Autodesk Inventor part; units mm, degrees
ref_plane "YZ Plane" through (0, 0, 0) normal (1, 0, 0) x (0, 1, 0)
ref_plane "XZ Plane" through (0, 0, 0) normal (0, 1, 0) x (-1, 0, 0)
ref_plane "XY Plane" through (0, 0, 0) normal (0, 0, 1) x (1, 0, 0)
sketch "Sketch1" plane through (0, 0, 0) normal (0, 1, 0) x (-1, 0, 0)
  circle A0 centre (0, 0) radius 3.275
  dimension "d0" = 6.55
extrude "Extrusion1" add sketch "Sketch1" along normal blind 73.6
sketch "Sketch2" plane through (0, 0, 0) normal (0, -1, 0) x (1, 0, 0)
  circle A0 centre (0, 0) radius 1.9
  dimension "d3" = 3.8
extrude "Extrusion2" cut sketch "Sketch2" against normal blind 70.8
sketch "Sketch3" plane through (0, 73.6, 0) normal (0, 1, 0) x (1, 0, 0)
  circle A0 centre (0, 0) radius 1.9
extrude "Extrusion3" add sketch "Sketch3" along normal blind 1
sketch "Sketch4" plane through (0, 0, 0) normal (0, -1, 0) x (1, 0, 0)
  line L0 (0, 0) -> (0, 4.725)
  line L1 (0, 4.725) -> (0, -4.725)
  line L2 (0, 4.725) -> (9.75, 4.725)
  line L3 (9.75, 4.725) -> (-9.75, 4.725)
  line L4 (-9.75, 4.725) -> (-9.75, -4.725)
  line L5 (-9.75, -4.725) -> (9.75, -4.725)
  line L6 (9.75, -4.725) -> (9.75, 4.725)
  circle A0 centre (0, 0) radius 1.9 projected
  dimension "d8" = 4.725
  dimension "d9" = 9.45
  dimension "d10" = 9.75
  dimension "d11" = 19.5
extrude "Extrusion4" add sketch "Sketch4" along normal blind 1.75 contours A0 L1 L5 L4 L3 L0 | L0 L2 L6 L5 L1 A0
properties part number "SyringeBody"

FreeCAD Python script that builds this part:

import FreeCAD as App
import Part
import Sketcher

doc = App.newDocument("Part")
body = doc.addObject("PartDesign::Body", "Body")

# Sketch on XZ plane
sketch1 = body.newObject("Sketcher::SketchObject", "Sketch")
sketch1.AttachmentSupport = (doc.getObject("XZ_Plane"), [""])
sketch1.MapMode = "FlatFace"
sketch1.addGeometry(Part.Circle(App.Vector(0, 0, 0), App.Vector(0, 0, 1), 3.3), False)
sketch1.addConstraint([
    Sketcher.Constraint("Coincident", 0, 3, -1, 1),
    Sketcher.Constraint("Diameter", 0, 6.55),
])
pad1 = body.newObject("PartDesign::Pad", "Pad")
pad1.Profile = sketch1
pad1.Length = 73.6
pad1.Reversed = True

# Sketch on XZ plane
sketch2 = body.newObject("Sketcher::SketchObject", "Sketch001")
sketch2.AttachmentSupport = (doc.getObject("XZ_Plane"), [""])
sketch2.MapMode = "FlatFace"
sketch2.addGeometry(Part.Circle(App.Vector(0, 0, 0), App.Vector(0, 0, 1), 1.9), False)
sketch2.addConstraint([
    Sketcher.Constraint("Coincident", 0, 3, -1, 1),
    Sketcher.Constraint("Diameter", 0, 3.8),
])
pocket1 = body.newObject("PartDesign::Pocket", "Pocket")
pocket1.Profile = sketch2
pocket1.Length = 70.8

# Sketch on XZ plane
sketch3 = body.newObject("Sketcher::SketchObject", "Sketch002")
sketch3.AttachmentSupport = (doc.getObject("XZ_Plane"), [""])
sketch3.MapMode = "FlatFace"
sketch3.AttachmentOffset = App.Placement(App.Vector(0, 0, -73.6), App.Rotation())
sketch3.addGeometry(Part.Circle(App.Vector(0, 0, 0), App.Vector(0, 0, 1), 1.9), False)
sketch3.addConstraint([
    Sketcher.Constraint("Coincident", 0, 3, -1, 1),
    Sketcher.Constraint("Diameter", 0, 3.8),
])
pad2 = body.newObject("PartDesign::Pad", "Pad001")
pad2.Profile = sketch3
pad2.Length = 1
pad2.Reversed = True

# Sketch on XZ plane
sketch4 = body.newObject("Sketcher::SketchObject", "Sketch003")
sketch4.AttachmentSupport = (doc.getObject("XZ_Plane"), [""])
sketch4.MapMode = "FlatFace"
sketch4.addGeometry([
    Part.LineSegment(App.Vector(-9.8, -4.7, 0), App.Vector(9.8, -4.7, 0)),  # 0
    Part.LineSegment(App.Vector(9.8, -4.7, 0), App.Vector(9.8, 4.7, 0)),  # 1
    Part.LineSegment(App.Vector(9.8, 4.7, 0), App.Vector(-9.8, 4.7, 0)),  # 2
    Part.LineSegment(App.Vector(-9.8, 4.7, 0), App.Vector(-9.8, -4.7, 0)),  # 3
    Part.Circle(App.Vector(0, 0, 0), App.Vector(0, 0, 1), 1.9),  # 4
], False)
sketch4.addConstraint([
    Sketcher.Constraint("Coincident", 0, 2, 1, 1),
    Sketcher.Constraint("Coincident", 1, 2, 2, 1),
    Sketcher.Constraint("Coincident", 2, 2, 3, 1),
    Sketcher.Constraint("Coincident", 3, 2, 0, 1),
    Sketcher.Constraint("Horizontal", 0),
    Sketcher.Constraint("Vertical", 1),
    Sketcher.Constraint("Horizontal", 2),
    Sketcher.Constraint("Vertical", 3),
    Sketcher.Constraint("Coincident", 4, 3, -1, 1),
    Sketcher.Constraint("Symmetric", 0, 2, 2, 2, -1, 1),
    Sketcher.Constraint("DistanceX", 0, 1, 0, 2, 19.5),
    Sketcher.Constraint("Diameter", 4, 3.8),
    Sketcher.Constraint("DistanceY", 1, 1, 1, 2, 9.45),
])
pad3 = body.newObject("PartDesign::Pad", "Pad002")
pad3.Profile = sketch4
pad3.Length = 1.75

doc.recompute()
